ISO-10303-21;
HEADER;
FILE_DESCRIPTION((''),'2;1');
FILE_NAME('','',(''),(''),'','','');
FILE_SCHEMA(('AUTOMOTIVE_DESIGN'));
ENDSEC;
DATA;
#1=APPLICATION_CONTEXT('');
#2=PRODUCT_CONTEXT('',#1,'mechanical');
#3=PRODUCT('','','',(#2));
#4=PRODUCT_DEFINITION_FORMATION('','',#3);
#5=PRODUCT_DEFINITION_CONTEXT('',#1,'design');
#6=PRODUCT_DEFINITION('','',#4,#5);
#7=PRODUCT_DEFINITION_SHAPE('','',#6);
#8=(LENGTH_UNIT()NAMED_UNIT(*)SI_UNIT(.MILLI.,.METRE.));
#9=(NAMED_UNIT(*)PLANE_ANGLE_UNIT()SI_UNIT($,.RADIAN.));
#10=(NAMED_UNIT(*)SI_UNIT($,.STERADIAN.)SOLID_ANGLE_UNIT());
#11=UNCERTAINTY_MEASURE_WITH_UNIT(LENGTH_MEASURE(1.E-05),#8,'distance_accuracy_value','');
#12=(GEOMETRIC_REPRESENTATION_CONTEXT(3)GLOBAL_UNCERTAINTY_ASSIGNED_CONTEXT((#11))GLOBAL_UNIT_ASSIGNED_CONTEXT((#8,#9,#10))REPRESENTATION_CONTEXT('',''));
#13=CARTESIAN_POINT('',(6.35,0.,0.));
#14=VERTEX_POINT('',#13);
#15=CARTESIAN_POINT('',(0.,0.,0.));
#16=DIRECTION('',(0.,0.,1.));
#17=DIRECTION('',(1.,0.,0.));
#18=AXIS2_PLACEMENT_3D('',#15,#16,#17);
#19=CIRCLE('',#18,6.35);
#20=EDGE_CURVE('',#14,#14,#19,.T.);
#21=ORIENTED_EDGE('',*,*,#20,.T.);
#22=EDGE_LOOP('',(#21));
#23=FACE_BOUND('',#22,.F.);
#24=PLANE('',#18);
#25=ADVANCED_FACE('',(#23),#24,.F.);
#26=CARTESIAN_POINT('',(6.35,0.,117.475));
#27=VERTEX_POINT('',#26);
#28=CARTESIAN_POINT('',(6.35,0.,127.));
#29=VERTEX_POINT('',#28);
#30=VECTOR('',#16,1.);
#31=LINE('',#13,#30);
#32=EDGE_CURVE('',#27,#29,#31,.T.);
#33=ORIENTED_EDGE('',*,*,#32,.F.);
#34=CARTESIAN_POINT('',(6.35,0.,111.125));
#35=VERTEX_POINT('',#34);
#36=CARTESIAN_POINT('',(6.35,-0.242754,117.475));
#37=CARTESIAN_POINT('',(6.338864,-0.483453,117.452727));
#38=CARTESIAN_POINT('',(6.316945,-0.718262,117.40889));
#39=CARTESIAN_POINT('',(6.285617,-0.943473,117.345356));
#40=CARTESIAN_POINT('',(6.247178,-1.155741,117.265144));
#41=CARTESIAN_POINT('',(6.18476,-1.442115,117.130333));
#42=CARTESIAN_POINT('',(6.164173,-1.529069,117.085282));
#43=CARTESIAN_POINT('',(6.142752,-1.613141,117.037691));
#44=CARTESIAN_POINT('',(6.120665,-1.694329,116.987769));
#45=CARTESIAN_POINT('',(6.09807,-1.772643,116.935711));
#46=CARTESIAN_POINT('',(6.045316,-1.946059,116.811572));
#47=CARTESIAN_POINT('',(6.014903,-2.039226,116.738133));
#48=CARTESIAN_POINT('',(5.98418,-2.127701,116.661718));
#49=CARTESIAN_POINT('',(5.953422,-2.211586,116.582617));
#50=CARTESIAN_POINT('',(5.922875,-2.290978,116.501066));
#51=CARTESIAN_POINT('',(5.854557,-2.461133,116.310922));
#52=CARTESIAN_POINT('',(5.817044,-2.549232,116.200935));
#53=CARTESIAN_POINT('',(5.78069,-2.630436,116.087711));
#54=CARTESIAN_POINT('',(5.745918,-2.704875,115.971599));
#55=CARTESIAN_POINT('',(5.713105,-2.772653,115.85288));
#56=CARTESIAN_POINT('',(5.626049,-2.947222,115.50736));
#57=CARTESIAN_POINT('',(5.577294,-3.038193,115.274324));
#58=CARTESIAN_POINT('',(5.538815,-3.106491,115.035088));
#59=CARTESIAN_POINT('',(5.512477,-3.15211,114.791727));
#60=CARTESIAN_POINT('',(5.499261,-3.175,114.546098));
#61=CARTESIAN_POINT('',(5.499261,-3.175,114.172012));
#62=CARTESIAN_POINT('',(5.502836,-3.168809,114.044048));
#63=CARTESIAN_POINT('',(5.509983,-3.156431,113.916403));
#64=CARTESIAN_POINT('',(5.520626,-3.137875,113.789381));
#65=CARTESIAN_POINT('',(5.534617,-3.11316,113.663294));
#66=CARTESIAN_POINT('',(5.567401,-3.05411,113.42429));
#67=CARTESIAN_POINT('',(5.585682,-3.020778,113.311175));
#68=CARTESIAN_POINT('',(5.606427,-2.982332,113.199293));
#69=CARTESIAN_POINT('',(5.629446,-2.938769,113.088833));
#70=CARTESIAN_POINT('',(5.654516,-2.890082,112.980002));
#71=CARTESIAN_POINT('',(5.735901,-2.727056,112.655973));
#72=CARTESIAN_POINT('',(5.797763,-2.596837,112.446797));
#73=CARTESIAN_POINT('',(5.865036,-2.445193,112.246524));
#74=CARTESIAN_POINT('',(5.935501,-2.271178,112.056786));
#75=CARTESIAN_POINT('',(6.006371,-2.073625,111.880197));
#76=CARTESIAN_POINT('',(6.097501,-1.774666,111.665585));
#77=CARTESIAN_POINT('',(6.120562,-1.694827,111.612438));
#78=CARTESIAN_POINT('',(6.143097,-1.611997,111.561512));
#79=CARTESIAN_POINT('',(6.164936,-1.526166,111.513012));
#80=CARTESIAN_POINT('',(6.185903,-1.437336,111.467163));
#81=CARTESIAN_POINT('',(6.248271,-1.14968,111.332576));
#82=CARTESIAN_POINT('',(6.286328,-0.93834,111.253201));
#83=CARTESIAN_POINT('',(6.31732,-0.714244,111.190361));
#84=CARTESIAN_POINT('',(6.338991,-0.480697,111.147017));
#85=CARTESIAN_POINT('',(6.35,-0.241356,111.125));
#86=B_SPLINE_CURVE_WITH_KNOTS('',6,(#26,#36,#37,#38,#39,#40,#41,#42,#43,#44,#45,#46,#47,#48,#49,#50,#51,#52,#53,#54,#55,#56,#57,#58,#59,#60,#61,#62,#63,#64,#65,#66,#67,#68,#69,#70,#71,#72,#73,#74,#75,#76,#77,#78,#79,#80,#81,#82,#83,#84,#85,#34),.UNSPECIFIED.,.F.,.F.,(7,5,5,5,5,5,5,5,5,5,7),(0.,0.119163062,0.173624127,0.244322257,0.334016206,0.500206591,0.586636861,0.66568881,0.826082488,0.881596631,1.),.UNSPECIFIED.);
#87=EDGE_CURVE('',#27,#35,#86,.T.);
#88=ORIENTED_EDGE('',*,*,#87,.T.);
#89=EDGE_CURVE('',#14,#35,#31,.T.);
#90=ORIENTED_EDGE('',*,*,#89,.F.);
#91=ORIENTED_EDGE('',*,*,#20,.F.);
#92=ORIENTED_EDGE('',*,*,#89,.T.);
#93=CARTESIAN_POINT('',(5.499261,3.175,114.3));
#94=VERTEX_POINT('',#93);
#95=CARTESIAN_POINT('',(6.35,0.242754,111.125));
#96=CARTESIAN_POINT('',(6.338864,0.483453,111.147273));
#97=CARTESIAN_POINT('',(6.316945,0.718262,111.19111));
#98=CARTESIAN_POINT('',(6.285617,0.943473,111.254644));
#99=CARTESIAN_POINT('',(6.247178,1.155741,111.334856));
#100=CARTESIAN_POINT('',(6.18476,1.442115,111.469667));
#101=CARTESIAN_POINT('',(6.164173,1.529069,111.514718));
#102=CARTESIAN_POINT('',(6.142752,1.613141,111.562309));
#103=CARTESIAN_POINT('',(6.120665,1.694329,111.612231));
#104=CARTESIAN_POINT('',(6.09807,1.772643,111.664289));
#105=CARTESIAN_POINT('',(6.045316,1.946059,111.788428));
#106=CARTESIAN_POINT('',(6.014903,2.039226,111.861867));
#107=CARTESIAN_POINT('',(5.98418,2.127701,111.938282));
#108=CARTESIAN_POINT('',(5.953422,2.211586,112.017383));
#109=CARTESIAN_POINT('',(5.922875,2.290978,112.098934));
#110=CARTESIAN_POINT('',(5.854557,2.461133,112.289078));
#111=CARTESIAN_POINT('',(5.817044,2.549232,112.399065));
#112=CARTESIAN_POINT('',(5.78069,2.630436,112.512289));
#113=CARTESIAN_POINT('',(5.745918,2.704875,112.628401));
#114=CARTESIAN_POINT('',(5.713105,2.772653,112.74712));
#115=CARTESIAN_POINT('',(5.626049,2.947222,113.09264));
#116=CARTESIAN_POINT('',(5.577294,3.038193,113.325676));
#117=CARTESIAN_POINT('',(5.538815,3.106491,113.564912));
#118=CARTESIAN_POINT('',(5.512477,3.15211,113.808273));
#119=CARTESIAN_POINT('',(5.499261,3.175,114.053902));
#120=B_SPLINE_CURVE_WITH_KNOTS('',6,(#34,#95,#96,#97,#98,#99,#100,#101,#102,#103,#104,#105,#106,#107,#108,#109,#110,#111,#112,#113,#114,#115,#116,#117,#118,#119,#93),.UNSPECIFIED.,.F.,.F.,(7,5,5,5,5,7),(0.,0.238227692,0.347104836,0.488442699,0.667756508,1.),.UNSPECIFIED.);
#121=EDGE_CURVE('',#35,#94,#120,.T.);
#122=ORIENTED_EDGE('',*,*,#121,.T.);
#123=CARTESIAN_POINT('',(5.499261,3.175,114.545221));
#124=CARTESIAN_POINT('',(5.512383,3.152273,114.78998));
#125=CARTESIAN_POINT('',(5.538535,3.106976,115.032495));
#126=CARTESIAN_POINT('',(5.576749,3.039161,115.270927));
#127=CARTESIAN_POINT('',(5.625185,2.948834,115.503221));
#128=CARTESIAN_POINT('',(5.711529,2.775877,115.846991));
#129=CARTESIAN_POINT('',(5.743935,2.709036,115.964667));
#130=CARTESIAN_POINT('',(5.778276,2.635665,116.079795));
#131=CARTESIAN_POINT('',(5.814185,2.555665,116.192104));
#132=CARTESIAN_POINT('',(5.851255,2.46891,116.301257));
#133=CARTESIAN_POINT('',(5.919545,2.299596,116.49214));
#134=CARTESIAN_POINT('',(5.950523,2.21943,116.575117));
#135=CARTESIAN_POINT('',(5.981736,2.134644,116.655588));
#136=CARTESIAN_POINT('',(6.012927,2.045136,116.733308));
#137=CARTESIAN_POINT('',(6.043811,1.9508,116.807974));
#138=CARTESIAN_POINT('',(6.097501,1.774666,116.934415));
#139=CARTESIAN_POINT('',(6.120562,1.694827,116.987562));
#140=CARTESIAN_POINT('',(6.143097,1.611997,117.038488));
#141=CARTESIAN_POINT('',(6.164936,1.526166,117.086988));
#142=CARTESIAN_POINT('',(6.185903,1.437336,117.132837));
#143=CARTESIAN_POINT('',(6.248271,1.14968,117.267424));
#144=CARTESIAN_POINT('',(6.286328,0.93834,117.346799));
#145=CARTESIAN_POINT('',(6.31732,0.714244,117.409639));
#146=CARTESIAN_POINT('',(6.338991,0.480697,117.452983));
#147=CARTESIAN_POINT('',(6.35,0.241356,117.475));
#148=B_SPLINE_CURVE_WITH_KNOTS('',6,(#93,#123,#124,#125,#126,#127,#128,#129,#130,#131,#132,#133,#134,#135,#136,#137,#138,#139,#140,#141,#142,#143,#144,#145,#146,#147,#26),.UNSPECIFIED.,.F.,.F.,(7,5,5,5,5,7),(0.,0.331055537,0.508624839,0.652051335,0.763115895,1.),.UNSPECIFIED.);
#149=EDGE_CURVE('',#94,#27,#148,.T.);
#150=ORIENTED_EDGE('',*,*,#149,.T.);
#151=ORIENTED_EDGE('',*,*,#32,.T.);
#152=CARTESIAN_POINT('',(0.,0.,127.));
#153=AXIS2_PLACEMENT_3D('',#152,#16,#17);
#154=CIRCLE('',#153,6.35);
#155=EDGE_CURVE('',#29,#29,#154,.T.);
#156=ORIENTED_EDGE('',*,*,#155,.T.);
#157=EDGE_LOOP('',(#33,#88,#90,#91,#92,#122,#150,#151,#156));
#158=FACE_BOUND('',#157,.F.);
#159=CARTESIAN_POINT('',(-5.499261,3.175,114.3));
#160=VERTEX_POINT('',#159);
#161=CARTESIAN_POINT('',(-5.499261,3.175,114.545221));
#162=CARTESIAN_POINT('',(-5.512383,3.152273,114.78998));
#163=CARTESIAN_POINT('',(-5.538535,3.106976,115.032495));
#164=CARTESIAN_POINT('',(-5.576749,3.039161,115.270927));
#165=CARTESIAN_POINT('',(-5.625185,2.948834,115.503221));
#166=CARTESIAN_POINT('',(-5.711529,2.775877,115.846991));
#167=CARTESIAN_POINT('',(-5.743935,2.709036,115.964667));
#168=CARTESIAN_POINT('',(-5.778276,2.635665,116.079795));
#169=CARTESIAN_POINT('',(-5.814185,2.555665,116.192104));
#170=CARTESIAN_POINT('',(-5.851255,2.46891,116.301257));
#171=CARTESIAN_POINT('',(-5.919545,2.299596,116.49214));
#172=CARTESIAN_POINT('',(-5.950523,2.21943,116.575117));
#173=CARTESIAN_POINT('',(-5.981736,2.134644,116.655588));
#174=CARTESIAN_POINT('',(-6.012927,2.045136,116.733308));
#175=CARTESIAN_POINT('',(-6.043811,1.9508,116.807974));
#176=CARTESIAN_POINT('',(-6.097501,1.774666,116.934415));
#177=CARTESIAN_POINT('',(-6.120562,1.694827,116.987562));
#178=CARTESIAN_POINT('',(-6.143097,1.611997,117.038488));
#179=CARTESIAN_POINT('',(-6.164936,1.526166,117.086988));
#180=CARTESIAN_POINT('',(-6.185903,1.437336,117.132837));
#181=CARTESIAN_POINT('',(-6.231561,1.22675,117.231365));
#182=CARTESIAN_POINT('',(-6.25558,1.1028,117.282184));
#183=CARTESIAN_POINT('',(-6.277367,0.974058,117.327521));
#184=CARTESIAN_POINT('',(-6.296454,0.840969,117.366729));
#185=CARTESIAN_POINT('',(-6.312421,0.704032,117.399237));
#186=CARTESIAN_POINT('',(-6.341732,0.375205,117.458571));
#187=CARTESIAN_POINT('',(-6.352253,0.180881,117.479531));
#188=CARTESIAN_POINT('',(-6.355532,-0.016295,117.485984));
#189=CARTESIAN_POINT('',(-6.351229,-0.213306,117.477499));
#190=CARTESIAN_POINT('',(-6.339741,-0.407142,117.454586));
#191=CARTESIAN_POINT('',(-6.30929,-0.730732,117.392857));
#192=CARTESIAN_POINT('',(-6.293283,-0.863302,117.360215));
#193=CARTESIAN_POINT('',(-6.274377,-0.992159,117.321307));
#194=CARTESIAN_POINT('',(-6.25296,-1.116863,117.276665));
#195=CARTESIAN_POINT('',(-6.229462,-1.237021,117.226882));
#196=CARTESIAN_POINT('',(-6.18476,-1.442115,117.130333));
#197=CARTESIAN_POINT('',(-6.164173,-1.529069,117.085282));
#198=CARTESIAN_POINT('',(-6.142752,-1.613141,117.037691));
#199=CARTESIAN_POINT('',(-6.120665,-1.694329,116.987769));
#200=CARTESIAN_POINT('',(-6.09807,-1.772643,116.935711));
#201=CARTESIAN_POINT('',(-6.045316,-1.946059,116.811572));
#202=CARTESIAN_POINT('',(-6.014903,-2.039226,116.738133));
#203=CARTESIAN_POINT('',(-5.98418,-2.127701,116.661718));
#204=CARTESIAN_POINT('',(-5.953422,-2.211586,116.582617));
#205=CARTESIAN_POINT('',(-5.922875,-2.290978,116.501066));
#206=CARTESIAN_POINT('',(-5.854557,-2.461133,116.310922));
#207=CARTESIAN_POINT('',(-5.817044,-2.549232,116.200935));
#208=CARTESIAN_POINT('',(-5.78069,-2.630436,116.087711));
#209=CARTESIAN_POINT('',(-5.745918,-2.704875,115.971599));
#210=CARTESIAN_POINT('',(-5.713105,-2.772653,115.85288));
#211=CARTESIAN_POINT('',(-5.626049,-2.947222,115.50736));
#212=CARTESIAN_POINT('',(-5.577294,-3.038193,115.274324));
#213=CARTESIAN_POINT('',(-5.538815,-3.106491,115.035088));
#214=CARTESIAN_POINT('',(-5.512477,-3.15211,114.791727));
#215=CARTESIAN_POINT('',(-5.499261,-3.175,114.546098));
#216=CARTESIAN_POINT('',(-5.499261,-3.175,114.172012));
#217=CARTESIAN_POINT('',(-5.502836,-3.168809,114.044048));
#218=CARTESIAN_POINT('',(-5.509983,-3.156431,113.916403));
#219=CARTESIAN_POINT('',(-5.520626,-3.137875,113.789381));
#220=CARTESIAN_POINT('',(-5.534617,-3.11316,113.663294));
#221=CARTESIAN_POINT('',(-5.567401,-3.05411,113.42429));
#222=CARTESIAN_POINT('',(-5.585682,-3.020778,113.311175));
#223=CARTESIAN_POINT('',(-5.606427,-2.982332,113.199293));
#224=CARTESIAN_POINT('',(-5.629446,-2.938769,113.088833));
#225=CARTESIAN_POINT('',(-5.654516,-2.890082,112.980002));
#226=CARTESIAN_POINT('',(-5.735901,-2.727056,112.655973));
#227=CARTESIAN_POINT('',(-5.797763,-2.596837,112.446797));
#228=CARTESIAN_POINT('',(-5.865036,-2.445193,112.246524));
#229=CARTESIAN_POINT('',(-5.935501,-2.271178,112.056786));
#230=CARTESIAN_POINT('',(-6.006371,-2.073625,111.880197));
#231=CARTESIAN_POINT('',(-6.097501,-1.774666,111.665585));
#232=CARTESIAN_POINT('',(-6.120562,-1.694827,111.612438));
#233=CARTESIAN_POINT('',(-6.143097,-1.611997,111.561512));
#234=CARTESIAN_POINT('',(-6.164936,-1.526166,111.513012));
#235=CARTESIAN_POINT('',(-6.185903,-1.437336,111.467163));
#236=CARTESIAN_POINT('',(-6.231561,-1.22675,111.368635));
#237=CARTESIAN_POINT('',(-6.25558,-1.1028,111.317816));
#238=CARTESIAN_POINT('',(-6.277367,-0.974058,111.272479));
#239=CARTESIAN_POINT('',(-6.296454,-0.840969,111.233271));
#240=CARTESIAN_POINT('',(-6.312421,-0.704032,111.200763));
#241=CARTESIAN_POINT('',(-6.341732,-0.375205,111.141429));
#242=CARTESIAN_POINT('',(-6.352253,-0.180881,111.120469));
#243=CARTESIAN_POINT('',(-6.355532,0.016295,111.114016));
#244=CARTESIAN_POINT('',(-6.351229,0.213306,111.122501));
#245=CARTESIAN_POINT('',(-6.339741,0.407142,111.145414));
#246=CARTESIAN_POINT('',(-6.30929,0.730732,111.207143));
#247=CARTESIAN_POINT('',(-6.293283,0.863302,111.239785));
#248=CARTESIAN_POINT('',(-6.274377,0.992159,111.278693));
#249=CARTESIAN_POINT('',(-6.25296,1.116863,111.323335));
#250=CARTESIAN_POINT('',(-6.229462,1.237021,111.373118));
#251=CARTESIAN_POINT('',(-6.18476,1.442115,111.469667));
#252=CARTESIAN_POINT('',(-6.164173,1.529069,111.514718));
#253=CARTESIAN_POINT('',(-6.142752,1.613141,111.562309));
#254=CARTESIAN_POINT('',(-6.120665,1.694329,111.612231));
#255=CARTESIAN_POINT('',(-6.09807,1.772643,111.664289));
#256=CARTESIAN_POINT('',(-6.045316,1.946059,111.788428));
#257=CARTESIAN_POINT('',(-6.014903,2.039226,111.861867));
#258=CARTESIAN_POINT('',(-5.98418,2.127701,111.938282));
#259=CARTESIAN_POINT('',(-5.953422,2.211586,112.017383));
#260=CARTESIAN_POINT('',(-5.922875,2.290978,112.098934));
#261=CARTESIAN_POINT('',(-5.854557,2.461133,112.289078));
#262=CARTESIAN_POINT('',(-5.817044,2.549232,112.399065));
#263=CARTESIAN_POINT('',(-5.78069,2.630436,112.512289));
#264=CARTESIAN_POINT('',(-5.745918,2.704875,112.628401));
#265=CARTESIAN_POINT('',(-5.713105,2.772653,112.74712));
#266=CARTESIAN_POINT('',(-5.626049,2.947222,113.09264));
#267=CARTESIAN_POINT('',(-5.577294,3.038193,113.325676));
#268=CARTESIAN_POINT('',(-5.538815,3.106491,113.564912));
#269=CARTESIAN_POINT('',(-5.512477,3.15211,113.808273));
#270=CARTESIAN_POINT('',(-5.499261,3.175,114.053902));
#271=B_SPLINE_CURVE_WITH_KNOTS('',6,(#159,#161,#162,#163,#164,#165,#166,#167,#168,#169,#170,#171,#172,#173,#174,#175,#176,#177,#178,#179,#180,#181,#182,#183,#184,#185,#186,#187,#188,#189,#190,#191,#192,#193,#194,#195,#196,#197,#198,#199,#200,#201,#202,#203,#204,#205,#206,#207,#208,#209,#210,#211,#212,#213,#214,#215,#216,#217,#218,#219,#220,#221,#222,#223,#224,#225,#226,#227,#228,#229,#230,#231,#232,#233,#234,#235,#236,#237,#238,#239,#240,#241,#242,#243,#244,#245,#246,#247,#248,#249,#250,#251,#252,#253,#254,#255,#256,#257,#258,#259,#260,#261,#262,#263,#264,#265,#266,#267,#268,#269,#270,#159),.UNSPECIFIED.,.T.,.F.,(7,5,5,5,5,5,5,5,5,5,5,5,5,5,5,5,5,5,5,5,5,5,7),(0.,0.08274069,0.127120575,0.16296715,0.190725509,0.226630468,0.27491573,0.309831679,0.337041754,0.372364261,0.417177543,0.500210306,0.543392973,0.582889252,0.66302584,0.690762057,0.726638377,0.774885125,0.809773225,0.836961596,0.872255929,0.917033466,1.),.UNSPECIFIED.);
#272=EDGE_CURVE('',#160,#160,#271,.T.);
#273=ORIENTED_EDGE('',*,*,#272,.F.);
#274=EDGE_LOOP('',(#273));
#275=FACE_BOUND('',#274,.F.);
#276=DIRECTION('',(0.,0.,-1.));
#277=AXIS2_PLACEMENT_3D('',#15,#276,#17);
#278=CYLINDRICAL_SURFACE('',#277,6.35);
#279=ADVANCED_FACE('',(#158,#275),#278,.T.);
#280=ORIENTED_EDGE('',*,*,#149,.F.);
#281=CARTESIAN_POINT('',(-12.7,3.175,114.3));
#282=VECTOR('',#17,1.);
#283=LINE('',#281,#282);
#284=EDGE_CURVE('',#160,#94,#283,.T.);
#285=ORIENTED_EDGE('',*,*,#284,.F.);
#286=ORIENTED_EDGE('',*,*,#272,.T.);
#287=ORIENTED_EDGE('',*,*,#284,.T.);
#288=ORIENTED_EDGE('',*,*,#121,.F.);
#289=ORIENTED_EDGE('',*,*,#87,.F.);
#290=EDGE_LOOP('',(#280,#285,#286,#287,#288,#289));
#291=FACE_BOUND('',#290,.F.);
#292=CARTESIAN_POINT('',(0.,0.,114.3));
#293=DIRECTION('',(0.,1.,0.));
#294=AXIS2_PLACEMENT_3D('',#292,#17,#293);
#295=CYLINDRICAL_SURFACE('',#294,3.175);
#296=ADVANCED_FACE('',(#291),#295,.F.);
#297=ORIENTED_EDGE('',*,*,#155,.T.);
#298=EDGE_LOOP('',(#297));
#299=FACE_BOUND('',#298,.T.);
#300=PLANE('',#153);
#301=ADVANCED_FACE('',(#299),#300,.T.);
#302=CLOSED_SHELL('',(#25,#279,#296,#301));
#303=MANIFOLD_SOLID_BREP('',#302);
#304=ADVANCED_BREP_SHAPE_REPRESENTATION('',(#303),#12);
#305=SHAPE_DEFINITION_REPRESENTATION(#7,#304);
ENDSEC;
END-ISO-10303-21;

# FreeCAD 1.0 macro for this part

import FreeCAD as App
import Part
import Sketcher
Q = App.Units.Quantity

doc = App.newDocument("Part")
body = doc.addObject("PartDesign::Body", "Body")

# Sketch on XY plane
sketch1 = body.newObject("Sketcher::SketchObject", "Sketch")
sketch1.AttachmentSupport = (doc.getObject("XY_Plane"), [""])
sketch1.MapMode = "FlatFace"
sketch1.addGeometry(Part.Circle(App.Vector(0, 0, 0), App.Vector(0, 0, 1), 6), False)
sketch1.addConstraint([
    Sketcher.Constraint("Coincident", 0, 3, -1, 1),
    Sketcher.Constraint("Diameter", 0, Q("0.5 in")),
])
pad1 = body.newObject("PartDesign::Pad", "Pad")
pad1.Profile = sketch1
pad1.Length = Q("5 in")

# Sketch on YZ plane
sketch2 = body.newObject("Sketcher::SketchObject", "Sketch001")
sketch2.AttachmentSupport = (doc.getObject("YZ_Plane"), [""])
sketch2.MapMode = "FlatFace"
sketch2.addGeometry(Part.Circle(App.Vector(0, 114.3, 0), App.Vector(0, 0, 1), 3.2), False)
sketch2.addConstraint([
    Sketcher.Constraint("PointOnObject", 0, 3, -2),
    Sketcher.Constraint("Diameter", 0, Q("0.25 in")),
    Sketcher.Constraint("DistanceY", -1, 1, 0, 3, Q("4.5 in")),
])
pocket1 = body.newObject("PartDesign::Pocket", "Pocket")
pocket1.Profile = sketch2
pocket1.Length = Q("1 in")
pocket1.Midplane = True

doc.recompute()
